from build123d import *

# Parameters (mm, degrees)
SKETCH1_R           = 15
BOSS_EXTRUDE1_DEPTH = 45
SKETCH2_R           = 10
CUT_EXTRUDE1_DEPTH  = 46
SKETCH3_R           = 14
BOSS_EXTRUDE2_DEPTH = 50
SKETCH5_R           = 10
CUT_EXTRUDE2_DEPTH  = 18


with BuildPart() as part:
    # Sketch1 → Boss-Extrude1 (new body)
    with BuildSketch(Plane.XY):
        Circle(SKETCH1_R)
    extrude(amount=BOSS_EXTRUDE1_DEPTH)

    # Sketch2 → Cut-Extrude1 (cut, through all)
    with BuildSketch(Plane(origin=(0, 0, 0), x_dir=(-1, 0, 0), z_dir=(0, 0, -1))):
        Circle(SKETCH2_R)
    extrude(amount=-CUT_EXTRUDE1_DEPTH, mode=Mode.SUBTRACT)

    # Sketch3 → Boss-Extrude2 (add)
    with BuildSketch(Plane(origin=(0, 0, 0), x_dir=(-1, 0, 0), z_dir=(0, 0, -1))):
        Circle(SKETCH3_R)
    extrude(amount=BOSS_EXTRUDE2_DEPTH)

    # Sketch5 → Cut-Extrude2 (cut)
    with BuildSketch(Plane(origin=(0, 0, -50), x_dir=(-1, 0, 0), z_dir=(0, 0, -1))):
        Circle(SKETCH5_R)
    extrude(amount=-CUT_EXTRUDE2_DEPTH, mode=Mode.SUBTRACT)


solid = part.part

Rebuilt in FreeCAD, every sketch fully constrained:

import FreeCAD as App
import Part
import Sketcher

V = App.Vector
Q = App.Units.Quantity

doc = App.newDocument("Part")
body = doc.addObject("PartDesign::Body", "Body")

# Sketch on XY plane
sketch1 = body.newObject("Sketcher::SketchObject", "Sketch")
sketch1.AttachmentSupport = (doc.getObject("XY_Plane"), [""])
sketch1.MapMode = "FlatFace"
sketch1.addGeometry(Part.Circle(V(0, 0, 0), V(0, 0, 1), 15), False)
sketch1.addConstraint(Sketcher.Constraint("Coincident", 0, 3, -1, 1))
sketch1.addConstraint(Sketcher.Constraint("Diameter", 0, Q("30 mm")))
pad1 = body.newObject("PartDesign::Pad", "Pad")
pad1.Profile = sketch1
pad1.Length = 45

# Sketch on XY plane
sketch2 = body.newObject("Sketcher::SketchObject", "Sketch001")
sketch2.AttachmentSupport = (doc.getObject("XY_Plane"), [""])
sketch2.MapMode = "FlatFace"
sketch2.addGeometry(Part.Circle(V(0, 0, 0), V(0, 0, 1), 10), False)
sketch2.addConstraint(Sketcher.Constraint("Coincident", 0, 3, -1, 1))
sketch2.addConstraint(Sketcher.Constraint("Diameter", 0, Q("20 mm")))
pocket1 = body.newObject("PartDesign::Pocket", "Pocket")
pocket1.Profile = sketch2
pocket1.Type = "ThroughAll"
pocket1.Reversed = True

# Sketch on XY plane
sketch3 = body.newObject("Sketcher::SketchObject", "Sketch002")
sketch3.AttachmentSupport = (doc.getObject("XY_Plane"), [""])
sketch3.MapMode = "FlatFace"
sketch3.addGeometry(Part.Circle(V(0, 0, 0), V(0, 0, 1), 14), False)
sketch3.addConstraint(Sketcher.Constraint("Coincident", 0, 3, -1, 1))
sketch3.addConstraint(Sketcher.Constraint("Diameter", 0, Q("28 mm")))
pad2 = body.newObject("PartDesign::Pad", "Pad001")
pad2.Profile = sketch3
pad2.Length = 50
pad2.Reversed = True

# Sketch on XY plane
sketch4 = body.newObject("Sketcher::SketchObject", "Sketch003")
sketch4.AttachmentSupport = (doc.getObject("XY_Plane"), [""])
sketch4.MapMode = "FlatFace"
sketch4.AttachmentOffset = App.Placement(V(0, 0, -50), App.Rotation())
sketch4.addGeometry(Part.Circle(V(0, 0, 0), V(0, 0, 1), 10), False)
sketch4.addConstraint(Sketcher.Constraint("Coincident", 0, 3, -1, 1))
sketch4.addConstraint(Sketcher.Constraint("Diameter", 0, Q("20 mm")))
pocket2 = body.newObject("PartDesign::Pocket", "Pocket001")
pocket2.Profile = sketch4
pocket2.Length = 18
pocket2.Reversed = True

doc.recompute()
